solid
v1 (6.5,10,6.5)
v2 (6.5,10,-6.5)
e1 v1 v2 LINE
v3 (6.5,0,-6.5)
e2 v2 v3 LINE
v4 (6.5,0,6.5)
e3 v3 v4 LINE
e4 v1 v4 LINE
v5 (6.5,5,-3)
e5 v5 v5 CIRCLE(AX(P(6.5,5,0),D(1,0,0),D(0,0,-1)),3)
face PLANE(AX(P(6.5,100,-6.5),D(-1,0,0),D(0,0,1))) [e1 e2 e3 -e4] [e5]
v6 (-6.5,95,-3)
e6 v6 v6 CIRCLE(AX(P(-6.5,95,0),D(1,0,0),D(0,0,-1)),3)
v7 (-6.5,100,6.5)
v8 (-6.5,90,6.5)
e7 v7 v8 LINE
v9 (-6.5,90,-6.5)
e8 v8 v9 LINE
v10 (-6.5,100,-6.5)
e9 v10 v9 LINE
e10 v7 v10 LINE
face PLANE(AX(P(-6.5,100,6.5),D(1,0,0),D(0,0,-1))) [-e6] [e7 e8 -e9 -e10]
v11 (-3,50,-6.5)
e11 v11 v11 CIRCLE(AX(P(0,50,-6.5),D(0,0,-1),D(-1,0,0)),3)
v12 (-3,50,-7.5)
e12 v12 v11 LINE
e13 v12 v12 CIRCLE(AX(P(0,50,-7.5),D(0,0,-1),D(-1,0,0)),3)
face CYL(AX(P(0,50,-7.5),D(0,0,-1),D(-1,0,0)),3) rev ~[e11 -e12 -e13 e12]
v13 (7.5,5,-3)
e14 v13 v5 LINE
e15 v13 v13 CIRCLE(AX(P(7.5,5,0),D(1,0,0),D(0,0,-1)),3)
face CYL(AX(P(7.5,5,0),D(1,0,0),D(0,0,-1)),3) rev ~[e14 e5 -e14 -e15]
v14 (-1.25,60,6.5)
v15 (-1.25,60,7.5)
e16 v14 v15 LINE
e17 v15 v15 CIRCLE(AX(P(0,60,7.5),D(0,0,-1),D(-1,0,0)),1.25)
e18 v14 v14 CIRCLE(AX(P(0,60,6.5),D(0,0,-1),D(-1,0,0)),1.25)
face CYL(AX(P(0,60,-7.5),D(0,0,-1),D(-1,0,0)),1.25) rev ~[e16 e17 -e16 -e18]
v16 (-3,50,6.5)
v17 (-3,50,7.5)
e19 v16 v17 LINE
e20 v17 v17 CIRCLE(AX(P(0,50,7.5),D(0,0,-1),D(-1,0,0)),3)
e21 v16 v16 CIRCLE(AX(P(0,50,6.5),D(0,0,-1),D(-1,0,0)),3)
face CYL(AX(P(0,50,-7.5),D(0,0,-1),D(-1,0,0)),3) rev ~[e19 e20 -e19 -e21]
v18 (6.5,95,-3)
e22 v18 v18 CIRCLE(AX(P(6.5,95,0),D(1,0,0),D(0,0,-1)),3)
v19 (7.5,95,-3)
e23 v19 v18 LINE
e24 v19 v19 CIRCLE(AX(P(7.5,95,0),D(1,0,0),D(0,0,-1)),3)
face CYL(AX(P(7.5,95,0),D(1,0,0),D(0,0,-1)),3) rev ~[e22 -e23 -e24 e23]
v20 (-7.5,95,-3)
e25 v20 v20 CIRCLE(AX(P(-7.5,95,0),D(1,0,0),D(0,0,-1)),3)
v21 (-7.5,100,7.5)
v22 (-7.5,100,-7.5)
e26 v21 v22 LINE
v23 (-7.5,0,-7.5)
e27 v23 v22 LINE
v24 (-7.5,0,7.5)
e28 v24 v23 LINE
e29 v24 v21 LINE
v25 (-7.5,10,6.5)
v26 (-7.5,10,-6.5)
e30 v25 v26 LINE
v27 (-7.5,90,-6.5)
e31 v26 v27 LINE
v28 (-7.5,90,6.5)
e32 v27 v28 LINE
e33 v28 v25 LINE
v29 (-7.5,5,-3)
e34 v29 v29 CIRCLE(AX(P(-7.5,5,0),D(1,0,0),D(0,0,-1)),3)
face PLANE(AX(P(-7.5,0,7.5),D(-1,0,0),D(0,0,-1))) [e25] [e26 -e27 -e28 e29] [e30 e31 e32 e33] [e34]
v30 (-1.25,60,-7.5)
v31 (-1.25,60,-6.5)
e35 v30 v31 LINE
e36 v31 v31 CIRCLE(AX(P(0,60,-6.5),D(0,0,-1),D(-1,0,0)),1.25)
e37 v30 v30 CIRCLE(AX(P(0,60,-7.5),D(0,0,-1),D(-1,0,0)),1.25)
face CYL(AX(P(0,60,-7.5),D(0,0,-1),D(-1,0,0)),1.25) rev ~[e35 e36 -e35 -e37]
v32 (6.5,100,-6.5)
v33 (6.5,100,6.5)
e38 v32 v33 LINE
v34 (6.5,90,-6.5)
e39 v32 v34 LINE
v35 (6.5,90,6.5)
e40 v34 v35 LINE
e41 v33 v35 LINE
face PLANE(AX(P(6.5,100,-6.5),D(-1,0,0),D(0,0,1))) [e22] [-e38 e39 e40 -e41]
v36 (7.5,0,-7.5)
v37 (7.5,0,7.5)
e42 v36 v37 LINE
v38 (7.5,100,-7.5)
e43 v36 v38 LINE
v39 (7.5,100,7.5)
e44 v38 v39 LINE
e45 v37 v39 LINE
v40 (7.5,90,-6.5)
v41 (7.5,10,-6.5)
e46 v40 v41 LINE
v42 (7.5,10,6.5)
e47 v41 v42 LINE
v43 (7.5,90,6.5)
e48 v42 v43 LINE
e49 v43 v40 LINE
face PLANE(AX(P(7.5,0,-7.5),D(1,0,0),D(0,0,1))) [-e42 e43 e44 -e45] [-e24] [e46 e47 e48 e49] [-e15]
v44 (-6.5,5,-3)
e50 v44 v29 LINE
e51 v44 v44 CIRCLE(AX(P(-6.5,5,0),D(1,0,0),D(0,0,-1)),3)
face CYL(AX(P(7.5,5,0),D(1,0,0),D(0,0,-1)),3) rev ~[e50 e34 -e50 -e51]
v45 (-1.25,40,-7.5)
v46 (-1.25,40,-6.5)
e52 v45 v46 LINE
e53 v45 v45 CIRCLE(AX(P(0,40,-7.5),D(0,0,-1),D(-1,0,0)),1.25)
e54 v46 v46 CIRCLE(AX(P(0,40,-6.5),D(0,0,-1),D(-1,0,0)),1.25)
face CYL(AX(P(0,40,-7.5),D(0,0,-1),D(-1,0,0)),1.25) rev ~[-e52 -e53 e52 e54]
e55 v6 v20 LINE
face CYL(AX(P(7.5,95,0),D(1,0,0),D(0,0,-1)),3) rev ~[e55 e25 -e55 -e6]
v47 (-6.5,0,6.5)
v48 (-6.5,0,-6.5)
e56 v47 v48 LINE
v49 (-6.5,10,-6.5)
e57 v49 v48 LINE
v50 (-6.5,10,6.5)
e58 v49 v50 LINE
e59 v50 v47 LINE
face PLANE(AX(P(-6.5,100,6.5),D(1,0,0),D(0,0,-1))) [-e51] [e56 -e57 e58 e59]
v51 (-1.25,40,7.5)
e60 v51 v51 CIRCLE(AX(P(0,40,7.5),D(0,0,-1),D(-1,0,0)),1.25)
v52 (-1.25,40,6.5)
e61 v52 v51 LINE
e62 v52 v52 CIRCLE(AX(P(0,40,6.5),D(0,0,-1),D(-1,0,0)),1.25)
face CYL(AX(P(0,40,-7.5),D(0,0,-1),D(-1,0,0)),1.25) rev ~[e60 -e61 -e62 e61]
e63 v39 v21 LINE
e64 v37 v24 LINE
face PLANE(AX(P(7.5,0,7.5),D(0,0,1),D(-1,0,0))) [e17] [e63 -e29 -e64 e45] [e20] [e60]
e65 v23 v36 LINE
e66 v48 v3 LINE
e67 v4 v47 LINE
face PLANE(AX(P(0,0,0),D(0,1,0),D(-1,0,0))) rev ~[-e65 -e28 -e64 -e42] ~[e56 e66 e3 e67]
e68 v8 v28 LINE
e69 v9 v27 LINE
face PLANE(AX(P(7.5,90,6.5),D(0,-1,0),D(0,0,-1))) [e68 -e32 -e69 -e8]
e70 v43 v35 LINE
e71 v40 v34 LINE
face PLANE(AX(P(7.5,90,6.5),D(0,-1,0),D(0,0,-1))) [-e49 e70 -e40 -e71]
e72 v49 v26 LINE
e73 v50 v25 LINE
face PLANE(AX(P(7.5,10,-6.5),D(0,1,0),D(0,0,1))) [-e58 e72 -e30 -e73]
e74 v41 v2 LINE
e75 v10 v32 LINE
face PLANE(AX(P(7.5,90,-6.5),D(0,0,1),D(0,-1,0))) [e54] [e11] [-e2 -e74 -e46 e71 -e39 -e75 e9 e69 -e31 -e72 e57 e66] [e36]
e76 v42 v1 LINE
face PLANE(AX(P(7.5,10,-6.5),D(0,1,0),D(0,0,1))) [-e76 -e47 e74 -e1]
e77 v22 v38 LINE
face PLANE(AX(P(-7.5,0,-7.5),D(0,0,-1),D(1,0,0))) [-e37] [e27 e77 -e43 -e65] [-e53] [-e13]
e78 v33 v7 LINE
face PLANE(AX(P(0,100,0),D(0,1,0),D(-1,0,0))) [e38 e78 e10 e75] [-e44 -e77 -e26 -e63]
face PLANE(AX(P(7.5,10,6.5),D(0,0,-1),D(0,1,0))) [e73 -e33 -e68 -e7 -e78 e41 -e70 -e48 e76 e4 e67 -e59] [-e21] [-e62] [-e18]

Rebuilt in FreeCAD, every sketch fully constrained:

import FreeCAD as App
import Part
import Sketcher

doc = App.newDocument("Part")
body = doc.addObject("PartDesign::Body", "Body")

# Sketch on XZ plane
sketch1 = doc.addObject("Sketcher::SketchObject", "Sketch")
body.addObject(sketch1)
sketch1.AttachmentSupport = (doc.XZ_Plane, [""])
sketch1.MapMode = "FlatFace"
sketch1.addGeometry([
    Part.LineSegment(App.Vector(-8, 8, 0), App.Vector(8, 8, 0)),
    Part.LineSegment(App.Vector(8, 8, 0), App.Vector(8, -8, 0)),
    Part.LineSegment(App.Vector(8, -8, 0), App.Vector(-8, -8, 0)),
    Part.LineSegment(App.Vector(-8, -8, 0), App.Vector(-8, 8, 0)),
], False)
sketch1.addConstraint([
    Sketcher.Constraint("Coincident", 0, 2, 1, 1),
    Sketcher.Constraint("Coincident", 1, 2, 2, 1),
    Sketcher.Constraint("Coincident", 2, 2, 3, 1),
    Sketcher.Constraint("Coincident", 3, 2, 0, 1),
    Sketcher.Constraint("Horizontal", 0),
    Sketcher.Constraint("Vertical", 1),
    Sketcher.Constraint("Horizontal", 2),
    Sketcher.Constraint("Vertical", 3),
    Sketcher.Constraint("Symmetric", 0, 2, 2, 2, -1, 1),
    Sketcher.Constraint("Equal", 2, 1),
    Sketcher.Constraint("DistanceX", 0, 1, 0, 2, 15.0),
])
pad1 = doc.addObject("PartDesign::Pad", "Pad")
body.addObject(pad1)
pad1.Profile = sketch1
pad1.Length = 100
pad1.Reversed = True

# Sketch on XZ plane
sketch2 = doc.addObject("Sketcher::SketchObject", "Sketch001")
body.addObject(sketch2)
sketch2.AttachmentSupport = (doc.XZ_Plane, [""])
sketch2.MapMode = "FlatFace"
sketch2.AttachmentOffset = App.Placement(App.Vector(0, 0, -100), App.Rotation())
sketch2.addGeometry([
    Part.LineSegment(App.Vector(6, -6, 0), App.Vector(-6, -6, 0)),
    Part.LineSegment(App.Vector(-6, -6, 0), App.Vector(-6, 6, 0)),
    Part.LineSegment(App.Vector(-6, 6, 0), App.Vector(6, 6, 0)),
    Part.LineSegment(App.Vector(6, 6, 0), App.Vector(6, -6, 0)),
], False)
sketch2.addConstraint([
    Sketcher.Constraint("Coincident", 0, 2, 1, 1),
    Sketcher.Constraint("Coincident", 1, 2, 2, 1),
    Sketcher.Constraint("Coincident", 2, 2, 3, 1),
    Sketcher.Constraint("Coincident", 3, 2, 0, 1),
    Sketcher.Constraint("Horizontal", 0),
    Sketcher.Constraint("Vertical", 1),
    Sketcher.Constraint("Horizontal", 2),
    Sketcher.Constraint("Vertical", 3),
    Sketcher.Constraint("Symmetric", 0, 2, 2, 2, -1, 1),
    Sketcher.Constraint("Equal", 2, 1),
    Sketcher.Constraint("DistanceX", 0, 2, 0, 1, 13.0),
])
pocket1 = doc.addObject("PartDesign::Pocket", "Pocket")
body.addObject(pocket1)
pocket1.Profile = sketch2
pocket1.Type = "ThroughAll"
pocket1.Reversed = True

# Sketch on YZ plane
sketch3 = doc.addObject("Sketcher::SketchObject", "Sketch002")
body.addObject(sketch3)
sketch3.AttachmentSupport = (doc.YZ_Plane, [""])
sketch3.MapMode = "FlatFace"
sketch3.AttachmentOffset = App.Placement(App.Vector(0, 0, 7.5), App.Rotation())
sketch3.addGeometry([
    Part.LineSegment(App.Vector(90, -6, 0), App.Vector(90, 6, 0)),
    Part.LineSegment(App.Vector(90, 6, 0), App.Vector(10, 6, 0)),
    Part.LineSegment(App.Vector(10, 6, 0), App.Vector(10, -6, 0)),
    Part.LineSegment(App.Vector(10, -6, 0), App.Vector(90, -6, 0)),
], False)
sketch3.addConstraint([
    Sketcher.Constraint("Coincident", 0, 2, 1, 1),
    Sketcher.Constraint("Coincident", 1, 2, 2, 1),
    Sketcher.Constraint("Coincident", 2, 2, 3, 1),
    Sketcher.Constraint("Coincident", 3, 2, 0, 1),
    Sketcher.Constraint("Vertical", 0),
    Sketcher.Constraint("Horizontal", 1),
    Sketcher.Constraint("Vertical", 2),
    Sketcher.Constraint("Horizontal", 3),
    Sketcher.Constraint("DistanceX", 1, 2, 1, 1, 80.0),
    Sketcher.Constraint("DistanceY", 0, 1, 0, 2, 13.0),
    Sketcher.Constraint("DistanceX", -1, 1, 0, 2, 90.0),
    Sketcher.Constraint("DistanceY", -1, 1, 0, 2, 6.5),
])
pocket2 = doc.addObject("PartDesign::Pocket", "Pocket001")
body.addObject(pocket2)
pocket2.Profile = sketch3
pocket2.Type = "ThroughAll"

# Sketch on YZ plane
sketch4 = doc.addObject("Sketcher::SketchObject", "Sketch003")
body.addObject(sketch4)
sketch4.AttachmentSupport = (doc.YZ_Plane, [""])
sketch4.MapMode = "FlatFace"
sketch4.AttachmentOffset = App.Placement(App.Vector(0, 0, 7.5), App.Rotation())
sketch4.addGeometry([
    Part.Circle(App.Vector(95, 0, 0), App.Vector(0, 0, 1), 3),
    Part.Circle(App.Vector(5, 0, 0), App.Vector(0, 0, 1), 3),
], False)
sketch4.addConstraint([
    Sketcher.Constraint("Equal", 0, 1),
    Sketcher.Constraint("PointOnObject", 0, 3, -1),
    Sketcher.Constraint("PointOnObject", 1, 3, -1),
    Sketcher.Constraint("Diameter", 0, 6.0),
    Sketcher.Constraint("DistanceX", -1, 1, 0, 3, 95.0),
    Sketcher.Constraint("DistanceX", -1, 1, 1, 3, 5.0),
])
pocket3 = doc.addObject("PartDesign::Pocket", "Pocket002")
body.addObject(pocket3)
pocket3.Profile = sketch4
pocket3.Type = "ThroughAll"

# Sketch on XY plane
sketch5 = doc.addObject("Sketcher::SketchObject", "Sketch004")
body.addObject(sketch5)
sketch5.AttachmentSupport = (doc.XY_Plane, [""])
sketch5.MapMode = "FlatFace"
sketch5.AttachmentOffset = App.Placement(App.Vector(0, 0, -7.5), App.Rotation())
sketch5.addGeometry([
    Part.Circle(App.Vector(0, 50, 0), App.Vector(0, 0, 1), 3),
    Part.Circle(App.Vector(0, 40, 0), App.Vector(0, 0, 1), 1.2),
    Part.Circle(App.Vector(0, 60, 0), App.Vector(0, 0, 1), 1.2),
], False)
sketch5.addConstraint([
    Sketcher.Constraint("Equal", 1, 2),
    Sketcher.Constraint("PointOnObject", 0, 3, -2),
    Sketcher.Constraint("PointOnObject", 1, 3, -2),
    Sketcher.Constraint("PointOnObject", 2, 3, -2),
    Sketcher.Constraint("Diameter", 0, 6.0),
    Sketcher.Constraint("Diameter", 1, 2.5),
    Sketcher.Constraint("DistanceY", -1, 1, 0, 3, 50.0),
    Sketcher.Constraint("DistanceY", 1, 3, 0, 3, 10.0),
    Sketcher.Constraint("DistanceY", 0, 3, 2, 3, 10.0),
])
pocket4 = doc.addObject("PartDesign::Pocket", "Pocket003")
body.addObject(pocket4)
pocket4.Profile = sketch5
pocket4.Type = "ThroughAll"
pocket4.Reversed = True

doc.recompute()
